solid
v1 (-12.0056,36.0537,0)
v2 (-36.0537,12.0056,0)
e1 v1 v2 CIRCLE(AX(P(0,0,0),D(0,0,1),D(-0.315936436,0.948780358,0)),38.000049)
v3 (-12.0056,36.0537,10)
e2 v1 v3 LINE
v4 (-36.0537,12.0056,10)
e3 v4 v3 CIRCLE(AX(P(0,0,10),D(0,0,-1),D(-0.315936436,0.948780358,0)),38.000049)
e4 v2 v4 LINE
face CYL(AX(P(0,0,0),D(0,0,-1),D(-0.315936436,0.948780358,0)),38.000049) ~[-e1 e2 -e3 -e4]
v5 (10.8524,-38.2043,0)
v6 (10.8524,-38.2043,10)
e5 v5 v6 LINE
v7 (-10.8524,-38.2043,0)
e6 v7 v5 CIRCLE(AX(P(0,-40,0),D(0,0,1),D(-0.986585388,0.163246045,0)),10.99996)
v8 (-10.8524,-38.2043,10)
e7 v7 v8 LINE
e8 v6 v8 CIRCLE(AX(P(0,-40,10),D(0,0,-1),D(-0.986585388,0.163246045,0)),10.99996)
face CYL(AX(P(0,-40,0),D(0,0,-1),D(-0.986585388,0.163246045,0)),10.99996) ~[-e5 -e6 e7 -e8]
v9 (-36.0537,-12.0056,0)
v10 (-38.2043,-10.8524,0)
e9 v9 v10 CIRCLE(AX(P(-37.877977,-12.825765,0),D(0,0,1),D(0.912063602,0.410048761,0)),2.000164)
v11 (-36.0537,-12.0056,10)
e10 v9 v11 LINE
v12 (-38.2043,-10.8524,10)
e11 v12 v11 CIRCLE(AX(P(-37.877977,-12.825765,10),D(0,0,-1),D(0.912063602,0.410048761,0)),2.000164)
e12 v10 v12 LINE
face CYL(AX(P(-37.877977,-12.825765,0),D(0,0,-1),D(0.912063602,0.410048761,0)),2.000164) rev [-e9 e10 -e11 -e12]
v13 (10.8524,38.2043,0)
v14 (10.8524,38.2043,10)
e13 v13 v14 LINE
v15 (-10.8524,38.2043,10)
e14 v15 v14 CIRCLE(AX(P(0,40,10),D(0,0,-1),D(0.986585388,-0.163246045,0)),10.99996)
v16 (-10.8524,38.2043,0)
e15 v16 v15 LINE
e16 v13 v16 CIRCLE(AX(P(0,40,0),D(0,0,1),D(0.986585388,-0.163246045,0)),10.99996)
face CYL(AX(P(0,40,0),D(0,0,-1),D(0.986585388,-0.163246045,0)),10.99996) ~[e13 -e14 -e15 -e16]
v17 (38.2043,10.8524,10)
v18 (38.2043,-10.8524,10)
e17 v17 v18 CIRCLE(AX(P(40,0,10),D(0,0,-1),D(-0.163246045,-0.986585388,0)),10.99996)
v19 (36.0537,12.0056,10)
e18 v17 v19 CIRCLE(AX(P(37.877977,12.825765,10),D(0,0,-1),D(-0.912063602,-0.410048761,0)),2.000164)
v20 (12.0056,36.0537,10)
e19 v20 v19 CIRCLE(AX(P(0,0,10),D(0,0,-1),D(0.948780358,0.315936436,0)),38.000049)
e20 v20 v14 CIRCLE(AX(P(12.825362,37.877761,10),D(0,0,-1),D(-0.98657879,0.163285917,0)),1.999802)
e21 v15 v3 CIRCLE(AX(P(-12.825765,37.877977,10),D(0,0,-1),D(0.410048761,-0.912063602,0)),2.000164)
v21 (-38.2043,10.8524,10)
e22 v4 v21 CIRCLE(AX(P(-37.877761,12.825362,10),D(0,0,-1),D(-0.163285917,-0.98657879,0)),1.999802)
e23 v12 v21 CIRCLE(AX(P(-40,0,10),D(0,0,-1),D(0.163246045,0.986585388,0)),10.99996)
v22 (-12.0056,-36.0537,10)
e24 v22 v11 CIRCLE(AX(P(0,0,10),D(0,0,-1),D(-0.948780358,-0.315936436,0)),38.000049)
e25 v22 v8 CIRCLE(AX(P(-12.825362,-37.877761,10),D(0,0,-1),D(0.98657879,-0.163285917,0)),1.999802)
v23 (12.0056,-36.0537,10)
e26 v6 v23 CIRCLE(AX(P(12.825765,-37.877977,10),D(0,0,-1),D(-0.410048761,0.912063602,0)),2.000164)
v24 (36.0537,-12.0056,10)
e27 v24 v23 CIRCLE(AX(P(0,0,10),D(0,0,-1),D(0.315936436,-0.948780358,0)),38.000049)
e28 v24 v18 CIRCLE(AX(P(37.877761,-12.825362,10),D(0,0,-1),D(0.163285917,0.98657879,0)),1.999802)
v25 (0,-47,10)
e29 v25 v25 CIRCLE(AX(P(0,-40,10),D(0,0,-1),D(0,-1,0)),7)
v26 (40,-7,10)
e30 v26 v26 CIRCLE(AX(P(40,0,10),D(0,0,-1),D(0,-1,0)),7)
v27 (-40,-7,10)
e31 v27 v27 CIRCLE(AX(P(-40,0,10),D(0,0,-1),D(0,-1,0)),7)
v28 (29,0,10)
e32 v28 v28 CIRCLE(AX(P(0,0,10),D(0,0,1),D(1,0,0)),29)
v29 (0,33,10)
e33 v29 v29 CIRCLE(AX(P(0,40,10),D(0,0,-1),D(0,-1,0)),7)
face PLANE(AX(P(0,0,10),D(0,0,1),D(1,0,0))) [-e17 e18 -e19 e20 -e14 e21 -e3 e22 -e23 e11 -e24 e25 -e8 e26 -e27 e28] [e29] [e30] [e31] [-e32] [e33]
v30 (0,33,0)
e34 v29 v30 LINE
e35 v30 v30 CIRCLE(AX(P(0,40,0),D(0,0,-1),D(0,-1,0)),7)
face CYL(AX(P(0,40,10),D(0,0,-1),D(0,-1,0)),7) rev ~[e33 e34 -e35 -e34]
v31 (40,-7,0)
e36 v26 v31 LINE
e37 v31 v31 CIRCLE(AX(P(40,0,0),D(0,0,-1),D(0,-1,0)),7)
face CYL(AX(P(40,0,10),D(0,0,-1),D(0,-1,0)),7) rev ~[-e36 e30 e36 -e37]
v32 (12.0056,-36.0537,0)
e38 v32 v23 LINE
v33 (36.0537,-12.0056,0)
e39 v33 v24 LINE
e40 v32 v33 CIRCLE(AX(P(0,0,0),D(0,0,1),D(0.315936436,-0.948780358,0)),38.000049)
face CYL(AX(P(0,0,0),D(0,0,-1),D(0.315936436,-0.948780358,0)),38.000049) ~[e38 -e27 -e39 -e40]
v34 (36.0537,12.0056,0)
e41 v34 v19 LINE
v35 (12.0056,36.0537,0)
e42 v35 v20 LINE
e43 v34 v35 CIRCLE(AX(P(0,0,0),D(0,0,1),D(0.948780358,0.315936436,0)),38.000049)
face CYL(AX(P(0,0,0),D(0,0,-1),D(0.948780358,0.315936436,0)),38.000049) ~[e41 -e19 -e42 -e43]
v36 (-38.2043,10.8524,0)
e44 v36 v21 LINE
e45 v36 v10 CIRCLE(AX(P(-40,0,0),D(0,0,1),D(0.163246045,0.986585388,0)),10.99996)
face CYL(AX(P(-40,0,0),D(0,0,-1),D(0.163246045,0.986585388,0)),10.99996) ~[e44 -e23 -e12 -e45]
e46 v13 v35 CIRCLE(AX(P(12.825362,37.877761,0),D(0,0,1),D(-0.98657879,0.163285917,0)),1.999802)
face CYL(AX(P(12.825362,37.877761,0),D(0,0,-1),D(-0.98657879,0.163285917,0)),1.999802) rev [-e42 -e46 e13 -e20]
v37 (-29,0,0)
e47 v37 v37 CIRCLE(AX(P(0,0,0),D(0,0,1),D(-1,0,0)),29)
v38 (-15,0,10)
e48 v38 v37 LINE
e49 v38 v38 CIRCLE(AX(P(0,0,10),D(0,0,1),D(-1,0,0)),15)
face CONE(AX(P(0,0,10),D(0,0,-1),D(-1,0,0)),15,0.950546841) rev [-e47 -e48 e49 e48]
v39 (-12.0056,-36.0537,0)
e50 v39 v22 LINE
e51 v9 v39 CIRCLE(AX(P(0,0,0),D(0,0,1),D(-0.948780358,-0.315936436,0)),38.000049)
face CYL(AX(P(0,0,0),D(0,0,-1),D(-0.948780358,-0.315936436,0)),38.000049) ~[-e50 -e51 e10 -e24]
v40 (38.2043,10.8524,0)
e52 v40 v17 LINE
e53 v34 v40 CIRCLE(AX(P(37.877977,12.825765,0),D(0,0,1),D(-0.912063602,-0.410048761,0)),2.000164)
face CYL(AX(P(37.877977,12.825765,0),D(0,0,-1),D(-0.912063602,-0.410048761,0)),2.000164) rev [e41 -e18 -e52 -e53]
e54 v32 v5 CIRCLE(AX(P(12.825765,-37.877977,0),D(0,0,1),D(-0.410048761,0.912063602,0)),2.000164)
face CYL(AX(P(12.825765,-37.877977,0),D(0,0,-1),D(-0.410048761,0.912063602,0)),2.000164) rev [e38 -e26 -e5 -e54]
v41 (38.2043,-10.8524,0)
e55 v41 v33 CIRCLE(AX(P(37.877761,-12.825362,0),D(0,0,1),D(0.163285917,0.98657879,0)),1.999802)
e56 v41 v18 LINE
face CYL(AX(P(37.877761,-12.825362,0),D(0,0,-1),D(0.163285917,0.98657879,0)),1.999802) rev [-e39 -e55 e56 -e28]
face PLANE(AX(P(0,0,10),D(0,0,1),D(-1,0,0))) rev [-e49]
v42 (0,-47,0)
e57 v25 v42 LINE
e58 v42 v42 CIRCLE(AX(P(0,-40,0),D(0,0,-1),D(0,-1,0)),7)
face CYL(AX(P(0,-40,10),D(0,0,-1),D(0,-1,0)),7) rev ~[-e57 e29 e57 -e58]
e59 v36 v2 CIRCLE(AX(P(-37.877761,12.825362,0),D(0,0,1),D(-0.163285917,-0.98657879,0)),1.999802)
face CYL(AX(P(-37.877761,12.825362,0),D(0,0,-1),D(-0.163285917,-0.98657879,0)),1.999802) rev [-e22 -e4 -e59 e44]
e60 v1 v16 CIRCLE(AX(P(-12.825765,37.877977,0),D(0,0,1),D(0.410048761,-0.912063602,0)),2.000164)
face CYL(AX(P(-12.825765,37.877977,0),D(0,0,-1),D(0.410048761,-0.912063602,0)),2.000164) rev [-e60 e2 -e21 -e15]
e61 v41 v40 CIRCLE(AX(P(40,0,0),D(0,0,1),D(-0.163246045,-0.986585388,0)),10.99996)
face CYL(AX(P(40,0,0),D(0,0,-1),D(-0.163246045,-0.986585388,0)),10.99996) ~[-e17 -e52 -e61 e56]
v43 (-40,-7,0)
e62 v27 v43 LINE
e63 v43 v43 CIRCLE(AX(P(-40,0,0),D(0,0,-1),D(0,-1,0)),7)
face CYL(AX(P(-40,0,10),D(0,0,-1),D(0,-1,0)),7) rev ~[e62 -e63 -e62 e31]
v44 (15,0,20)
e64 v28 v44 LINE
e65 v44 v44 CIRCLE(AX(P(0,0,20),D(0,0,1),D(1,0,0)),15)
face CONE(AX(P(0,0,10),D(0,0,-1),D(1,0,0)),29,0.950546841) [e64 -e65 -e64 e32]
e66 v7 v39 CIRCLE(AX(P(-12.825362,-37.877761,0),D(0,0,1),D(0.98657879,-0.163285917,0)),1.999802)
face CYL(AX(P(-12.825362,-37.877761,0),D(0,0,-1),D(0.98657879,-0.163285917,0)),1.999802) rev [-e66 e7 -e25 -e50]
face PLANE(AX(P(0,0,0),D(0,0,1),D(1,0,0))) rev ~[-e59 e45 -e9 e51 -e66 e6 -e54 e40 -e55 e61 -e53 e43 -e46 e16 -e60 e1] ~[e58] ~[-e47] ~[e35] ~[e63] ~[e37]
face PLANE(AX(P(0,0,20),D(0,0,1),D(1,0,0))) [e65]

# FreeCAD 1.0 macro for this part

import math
import FreeCAD as App
import Part
import Sketcher

V = App.Vector
Q = App.Units.Quantity

doc = App.newDocument("Part")
body = doc.addObject("PartDesign::Body", "Body")

sketch1 = doc.addObject("Sketcher::SketchObject", "Sketch")
body.addObject(sketch1)
sketch1.AttachmentSupport = (doc.XY_Plane, [""])
sketch1.MapMode = "FlatFace"
sketch1.addGeometry(Part.ArcOfCircle(Part.Circle(V(-37.8778, 12.8256, 0), V(0, 0, 1), 2.00003), math.radians(-99.395446), math.radians(-24.205669)), False)
sketch1.addGeometry(Part.ArcOfCircle(Part.Circle(V(-40, 0, 0), V(0, 0, 1), 10.99996), math.radians(80.604641), math.radians(279.395359)), False)
sketch1.addGeometry(Part.ArcOfCircle(Part.Circle(V(-37.8778, -12.8256, 0), V(0, 0, 1), 1.999935), math.radians(24.205669), math.radians(99.395446)), False)
sketch1.addGeometry(Part.ArcOfCircle(Part.Circle(V(0, 0, 0), V(0, 0, 1), 38.000049), math.radians(-161.582645), math.radians(-108.417355)), False)
sketch1.addGeometry(Part.ArcOfCircle(Part.Circle(V(-12.8256, -37.8778, 0), V(0, 0, 1), 2.00003), math.radians(-9.395446), math.radians(65.794331)), False)
sketch1.addGeometry(Part.ArcOfCircle(Part.Circle(V(0, -40, 0), V(0, 0, 1), 10.99996), math.radians(170.604641), math.radians(369.395359)), False)
sketch1.addGeometry(Part.ArcOfCircle(Part.Circle(V(12.8256, -37.8778, 0), V(0, 0, 1), 1.999935), math.radians(114.205669), math.radians(189.395446)), False)
sketch1.addGeometry(Part.ArcOfCircle(Part.Circle(V(0, 0, 0), V(0, 0, 1), 38.000049), math.radians(-71.582645), math.radians(-18.417355)), False)
sketch1.addGeometry(Part.ArcOfCircle(Part.Circle(V(37.8778, -12.8256, 0), V(0, 0, 1), 2.00003), math.radians(80.604554), math.radians(155.794331)), False)
sketch1.addGeometry(Part.ArcOfCircle(Part.Circle(V(40, 0, 0), V(0, 0, 1), 10.99996), math.radians(-99.395359), math.radians(99.395359)), False)
sketch1.addGeometry(Part.ArcOfCircle(Part.Circle(V(37.8778, 12.8256, 0), V(0, 0, 1), 1.999935), math.radians(-155.794331), math.radians(-80.604554)), False)
sketch1.addGeometry(Part.ArcOfCircle(Part.Circle(V(0, 0, 0), V(0, 0, 1), 38.000049), math.radians(18.417355), math.radians(71.582645)), False)
sketch1.addGeometry(Part.ArcOfCircle(Part.Circle(V(12.8256, 37.8778, 0), V(0, 0, 1), 2.00003), math.radians(170.604554), math.radians(245.794331)), False)
sketch1.addGeometry(Part.ArcOfCircle(Part.Circle(V(0, 40, 0), V(0, 0, 1), 10.99996), math.radians(-9.395359), math.radians(189.395359)), False)
sketch1.addGeometry(Part.ArcOfCircle(Part.Circle(V(-12.8256, 37.8778, 0), V(0, 0, 1), 1.999935), math.radians(-65.794331), math.radians(9.395446)), False)
sketch1.addGeometry(Part.ArcOfCircle(Part.Circle(V(0, 0, 0), V(0, 0, 1), 38.000049), math.radians(108.417355), math.radians(161.582645)), False)
sketch1.addConstraint(Sketcher.Constraint("Tangent", 0, 1, 1, 1))
sketch1.addConstraint(Sketcher.Constraint("Tangent", 1, 2, 2, 2))
sketch1.addConstraint(Sketcher.Constraint("Coincident", 2, 1, 3, 1))
sketch1.addConstraint(Sketcher.Constraint("Coincident", 3, 2, 4, 2))
sketch1.addConstraint(Sketcher.Constraint("Tangent", 4, 1, 5, 1))
sketch1.addConstraint(Sketcher.Constraint("Tangent", 5, 2, 6, 2))
sketch1.addConstraint(Sketcher.Constraint("Coincident", 6, 1, 7, 1))
sketch1.addConstraint(Sketcher.Constraint("Coincident", 7, 2, 8, 2))
sketch1.addConstraint(Sketcher.Constraint("Tangent", 8, 1, 9, 1))
sketch1.addConstraint(Sketcher.Constraint("Tangent", 9, 2, 10, 2))
sketch1.addConstraint(Sketcher.Constraint("Coincident", 10, 1, 11, 1))
sketch1.addConstraint(Sketcher.Constraint("Coincident", 11, 2, 12, 2))
sketch1.addConstraint(Sketcher.Constraint("Tangent", 12, 1, 13, 1))
sketch1.addConstraint(Sketcher.Constraint("Tangent", 13, 2, 14, 2))
sketch1.addConstraint(Sketcher.Constraint("Coincident", 14, 1, 15, 1))
sketch1.addConstraint(Sketcher.Constraint("Coincident", 15, 2, 0, 2))
sketch1.addConstraint(Sketcher.Constraint("Coincident", 3, 3, -1, 1))
sketch1.addConstraint(Sketcher.Constraint("Coincident", 7, 3, -1, 1))
sketch1.addConstraint(Sketcher.Constraint("Coincident", 11, 3, -1, 1))
sketch1.addConstraint(Sketcher.Constraint("Coincident", 15, 3, -1, 1))
sketch1.addConstraint(Sketcher.Constraint("Equal", 0, 2))
sketch1.addConstraint(Sketcher.Constraint("Equal", 2, 4))
sketch1.addConstraint(Sketcher.Constraint("Equal", 1, 5))
sketch1.addConstraint(Sketcher.Constraint("Equal", 4, 6))
sketch1.addConstraint(Sketcher.Constraint("Equal", 3, 7))
sketch1.addConstraint(Sketcher.Constraint("Equal", 6, 8))
sketch1.addConstraint(Sketcher.Constraint("Equal", 5, 9))
sketch1.addConstraint(Sketcher.Constraint("Equal", 8, 10))
sketch1.addConstraint(Sketcher.Constraint("Equal", 7, 11))
sketch1.addConstraint(Sketcher.Constraint("Equal", 10, 12))
sketch1.addConstraint(Sketcher.Constraint("Equal", 9, 13))
sketch1.addConstraint(Sketcher.Constraint("Equal", 12, 14))
sketch1.addConstraint(Sketcher.Constraint("Equal", 11, 15))
sketch1.addConstraint(Sketcher.Constraint("Symmetric", 0, 3, 8, 3, -1, 1))
sketch1.addConstraint(Sketcher.Constraint("Symmetric", 2, 3, 10, 3, -1, 1))
sketch1.addConstraint(Sketcher.Constraint("Symmetric", 4, 3, 12, 3, -1, 1))
sketch1.addConstraint(Sketcher.Constraint("Symmetric", 6, 3, 14, 3, -1, 1))
sketch1.addConstraint(Sketcher.Constraint("Symmetric", 4, 3, 6, 3, -2))
sketch1.addConstraint(Sketcher.Constraint("Symmetric", 2, 3, 8, 3, -2))
sketch1.addConstraint(Sketcher.Constraint("Radius", 0, Q("2 mm")))
sketch1.addConstraint(Sketcher.Constraint("Radius", 1, Q("11 mm")))
sketch1.addConstraint(Sketcher.Constraint("Radius", 3, Q("38 mm")))
sketch1.addConstraint(Sketcher.Constraint("DistanceX", 1, 3, -1, 1, Q("40 mm")))
sketch1.addConstraint(Sketcher.Constraint("DistanceY", 5, 3, -1, 1, Q("40 mm")))
sketch1.addConstraint(Sketcher.Constraint("DistanceX", 0, 3, -1, 1, Q("37.8778 mm")))
sketch1.addConstraint(Sketcher.Constraint("DistanceY", 4, 3, -1, 1, Q("37.8778 mm")))
pad1 = doc.addObject("PartDesign::Pad", "Pad")
body.addObject(pad1)
pad1.Profile = sketch1
pad1.Length = 20

sketch2 = doc.addObject("Sketcher::SketchObject", "Sketch001")
body.addObject(sketch2)
sketch2.AttachmentSupport = (doc.XZ_Plane, [""])
sketch2.MapMode = "FlatFace"
sketch2.addGeometry(Part.LineSegment(V(0, 10, 0), V(0, 0, 0)), False)
sketch2.addGeometry(Part.LineSegment(V(0, 0, 0), V(-29, 0, 0)), False)
sketch2.addGeometry(Part.LineSegment(V(-29, 0, 0), V(-15, 10, 0)), False)
sketch2.addGeometry(Part.LineSegment(V(-15, 10, 0), V(0, 10, 0)), False)
sketch2.addConstraint(Sketcher.Constraint("Coincident", 0, 2, 1, 1))
sketch2.addConstraint(Sketcher.Constraint("Coincident", 1, 2, 2, 1))
sketch2.addConstraint(Sketcher.Constraint("Coincident", 2, 2, 3, 1))
sketch2.addConstraint(Sketcher.Constraint("Coincident", 3, 2, 0, 1))
sketch2.addConstraint(Sketcher.Constraint("Vertical", 0))
sketch2.addConstraint(Sketcher.Constraint("Horizontal", 1))
sketch2.addConstraint(Sketcher.Constraint("Horizontal", 3))
sketch2.addConstraint(Sketcher.Constraint("Coincident", 0, 2, -1, 1))
sketch2.addConstraint(Sketcher.Constraint("DistanceX", 1, 2, 1, 1, Q("29 mm")))
sketch2.addConstraint(Sketcher.Constraint("DistanceX", 3, 1, 3, 2, Q("15 mm")))
sketch2.addConstraint(Sketcher.Constraint("DistanceY", 0, 2, 0, 1, Q("10 mm")))
groove = doc.addObject("PartDesign::Groove", "Groove")
body.addObject(groove)
groove.Profile = sketch2
groove.ReferenceAxis = (sketch2, ["V_Axis"])
groove.Angle = 360

sketch3 = doc.addObject("Sketcher::SketchObject", "Sketch002")
body.addObject(sketch3)
sketch3.AttachmentSupport = (doc.XZ_Plane, [""])
sketch3.MapMode = "FlatFace"
sketch3.addGeometry(Part.LineSegment(V(51, 20, 0), V(51, 10, 0)), False)
sketch3.addGeometry(Part.LineSegment(V(51, 10, 0), V(29, 10, 0)), False)
sketch3.addGeometry(Part.LineSegment(V(29, 10, 0), V(15, 20, 0)), False)
sketch3.addGeometry(Part.LineSegment(V(15, 20, 0), V(51, 20, 0)), False)
sketch3.addConstraint(Sketcher.Constraint("Coincident", 0, 2, 1, 1))
sketch3.addConstraint(Sketcher.Constraint("Coincident", 1, 2, 2, 1))
sketch3.addConstraint(Sketcher.Constraint("Coincident", 2, 2, 3, 1))
sketch3.addConstraint(Sketcher.Constraint("Coincident", 3, 2, 0, 1))
sketch3.addConstraint(Sketcher.Constraint("Vertical", 0))
sketch3.addConstraint(Sketcher.Constraint("Horizontal", 1))
sketch3.addConstraint(Sketcher.Constraint("Horizontal", 3))
sketch3.addConstraint(Sketcher.Constraint("DistanceY", 0, 2, 0, 1, Q("10 mm")))
sketch3.addConstraint(Sketcher.Constraint("DistanceY", -1, 1, 0, 2, Q("10 mm")))
sketch3.addConstraint(Sketcher.Constraint("DistanceX", -1, 1, 1, 2, Q("29 mm")))
sketch3.addConstraint(Sketcher.Constraint("DistanceX", 1, 2, 1, 1, Q("22 mm")))
sketch3.addConstraint(Sketcher.Constraint("DistanceX", 3, 1, 3, 2, Q("36 mm")))
groove2 = doc.addObject("PartDesign::Groove", "Groove001")
body.addObject(groove2)
groove2.Profile = sketch3
groove2.ReferenceAxis = (sketch3, ["V_Axis"])
groove2.Angle = 360

sketch4 = doc.addObject("Sketcher::SketchObject", "Sketch003")
body.addObject(sketch4)
sketch4.AttachmentSupport = (doc.XY_Plane, [""])
sketch4.MapMode = "FlatFace"
sketch4.AttachmentOffset = App.Placement(V(0, 0, 10), App.Rotation())
sketch4.addGeometry(Part.Circle(V(0, -40, 0), V(0, 0, 1), 7), False)
sketch4.addGeometry(Part.Circle(V(-40, 0, 0), V(0, 0, 1), 7), False)
sketch4.addGeometry(Part.Circle(V(40, 0, 0), V(0, 0, 1), 7), False)
sketch4.addGeometry(Part.Circle(V(0, 40, 0), V(0, 0, 1), 7), False)
sketch4.addConstraint(Sketcher.Constraint("Equal", 0, 1))
sketch4.addConstraint(Sketcher.Constraint("Equal", 1, 2))
sketch4.addConstraint(Sketcher.Constraint("Equal", 2, 3))
sketch4.addConstraint(Sketcher.Constraint("Symmetric", 1, 3, 2, 3, -1, 1))
sketch4.addConstraint(Sketcher.Constraint("Symmetric", 0, 3, 3, 3, -1, 1))
sketch4.addConstraint(Sketcher.Constraint("PointOnObject", 0, 3, -2))
sketch4.addConstraint(Sketcher.Constraint("PointOnObject", 1, 3, -1))
sketch4.addConstraint(Sketcher.Constraint("Diameter", 0, Q("14 mm")))
sketch4.addConstraint(Sketcher.Constraint("DistanceY", 0, 3, -1, 1, Q("40 mm")))
sketch4.addConstraint(Sketcher.Constraint("DistanceX", 1, 3, -1, 1, Q("40 mm")))
doc.recompute()
hole = doc.addObject("PartDesign::Hole", "Hole")
body.addObject(hole)
hole.Profile = sketch4
hole.ThreadType = "None"
hole.Diameter = 14
hole.DepthType = "Dimension"
hole.Depth = 10
hole.DrillPoint = "Flat"

doc.recompute()
